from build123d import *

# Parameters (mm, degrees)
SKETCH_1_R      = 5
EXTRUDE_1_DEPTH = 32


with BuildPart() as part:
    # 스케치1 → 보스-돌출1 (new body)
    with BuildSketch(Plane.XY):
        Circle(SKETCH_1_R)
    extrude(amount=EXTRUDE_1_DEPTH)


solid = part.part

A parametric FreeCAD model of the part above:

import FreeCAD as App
import Part
import Sketcher
from FreeCAD import Vector

doc = App.newDocument("Part")
params = doc.addObject("Spreadsheet::Sheet", "Params")
for row, (alias, value) in enumerate([
    ("sketch1_diameter", "10 mm"),
    ("pad1_length", "32 mm"),
], start=1):
    params.set(f"A{row}", alias)
    params.set(f"B{row}", "=" + value)
    params.setAlias(f"B{row}", alias)

body = doc.addObject("PartDesign::Body", "Body")

# Sketch on XY plane
sketch1 = body.newObject("Sketcher::SketchObject", "Sketch")
sketch1.AttachmentSupport = (doc.getObject("XY_Plane"), [""])
sketch1.MapMode = "FlatFace"
sketch1.addGeometry(Part.Circle(Vector(0, 0, 0), Vector(0, 0, 1), 5), False)
sketch1.addConstraint([
    Sketcher.Constraint("Coincident", 0, 3, -1, 1),
    Sketcher.Constraint("Diameter", 0, 10.0),
])
sketch1.setExpression("Constraints[1]", "Params.sketch1_diameter")
pad1 = body.newObject("PartDesign::Pad", "Pad")
pad1.Profile = sketch1
pad1.setExpression("Length", "Params.pad1_length")

doc.recompute()
